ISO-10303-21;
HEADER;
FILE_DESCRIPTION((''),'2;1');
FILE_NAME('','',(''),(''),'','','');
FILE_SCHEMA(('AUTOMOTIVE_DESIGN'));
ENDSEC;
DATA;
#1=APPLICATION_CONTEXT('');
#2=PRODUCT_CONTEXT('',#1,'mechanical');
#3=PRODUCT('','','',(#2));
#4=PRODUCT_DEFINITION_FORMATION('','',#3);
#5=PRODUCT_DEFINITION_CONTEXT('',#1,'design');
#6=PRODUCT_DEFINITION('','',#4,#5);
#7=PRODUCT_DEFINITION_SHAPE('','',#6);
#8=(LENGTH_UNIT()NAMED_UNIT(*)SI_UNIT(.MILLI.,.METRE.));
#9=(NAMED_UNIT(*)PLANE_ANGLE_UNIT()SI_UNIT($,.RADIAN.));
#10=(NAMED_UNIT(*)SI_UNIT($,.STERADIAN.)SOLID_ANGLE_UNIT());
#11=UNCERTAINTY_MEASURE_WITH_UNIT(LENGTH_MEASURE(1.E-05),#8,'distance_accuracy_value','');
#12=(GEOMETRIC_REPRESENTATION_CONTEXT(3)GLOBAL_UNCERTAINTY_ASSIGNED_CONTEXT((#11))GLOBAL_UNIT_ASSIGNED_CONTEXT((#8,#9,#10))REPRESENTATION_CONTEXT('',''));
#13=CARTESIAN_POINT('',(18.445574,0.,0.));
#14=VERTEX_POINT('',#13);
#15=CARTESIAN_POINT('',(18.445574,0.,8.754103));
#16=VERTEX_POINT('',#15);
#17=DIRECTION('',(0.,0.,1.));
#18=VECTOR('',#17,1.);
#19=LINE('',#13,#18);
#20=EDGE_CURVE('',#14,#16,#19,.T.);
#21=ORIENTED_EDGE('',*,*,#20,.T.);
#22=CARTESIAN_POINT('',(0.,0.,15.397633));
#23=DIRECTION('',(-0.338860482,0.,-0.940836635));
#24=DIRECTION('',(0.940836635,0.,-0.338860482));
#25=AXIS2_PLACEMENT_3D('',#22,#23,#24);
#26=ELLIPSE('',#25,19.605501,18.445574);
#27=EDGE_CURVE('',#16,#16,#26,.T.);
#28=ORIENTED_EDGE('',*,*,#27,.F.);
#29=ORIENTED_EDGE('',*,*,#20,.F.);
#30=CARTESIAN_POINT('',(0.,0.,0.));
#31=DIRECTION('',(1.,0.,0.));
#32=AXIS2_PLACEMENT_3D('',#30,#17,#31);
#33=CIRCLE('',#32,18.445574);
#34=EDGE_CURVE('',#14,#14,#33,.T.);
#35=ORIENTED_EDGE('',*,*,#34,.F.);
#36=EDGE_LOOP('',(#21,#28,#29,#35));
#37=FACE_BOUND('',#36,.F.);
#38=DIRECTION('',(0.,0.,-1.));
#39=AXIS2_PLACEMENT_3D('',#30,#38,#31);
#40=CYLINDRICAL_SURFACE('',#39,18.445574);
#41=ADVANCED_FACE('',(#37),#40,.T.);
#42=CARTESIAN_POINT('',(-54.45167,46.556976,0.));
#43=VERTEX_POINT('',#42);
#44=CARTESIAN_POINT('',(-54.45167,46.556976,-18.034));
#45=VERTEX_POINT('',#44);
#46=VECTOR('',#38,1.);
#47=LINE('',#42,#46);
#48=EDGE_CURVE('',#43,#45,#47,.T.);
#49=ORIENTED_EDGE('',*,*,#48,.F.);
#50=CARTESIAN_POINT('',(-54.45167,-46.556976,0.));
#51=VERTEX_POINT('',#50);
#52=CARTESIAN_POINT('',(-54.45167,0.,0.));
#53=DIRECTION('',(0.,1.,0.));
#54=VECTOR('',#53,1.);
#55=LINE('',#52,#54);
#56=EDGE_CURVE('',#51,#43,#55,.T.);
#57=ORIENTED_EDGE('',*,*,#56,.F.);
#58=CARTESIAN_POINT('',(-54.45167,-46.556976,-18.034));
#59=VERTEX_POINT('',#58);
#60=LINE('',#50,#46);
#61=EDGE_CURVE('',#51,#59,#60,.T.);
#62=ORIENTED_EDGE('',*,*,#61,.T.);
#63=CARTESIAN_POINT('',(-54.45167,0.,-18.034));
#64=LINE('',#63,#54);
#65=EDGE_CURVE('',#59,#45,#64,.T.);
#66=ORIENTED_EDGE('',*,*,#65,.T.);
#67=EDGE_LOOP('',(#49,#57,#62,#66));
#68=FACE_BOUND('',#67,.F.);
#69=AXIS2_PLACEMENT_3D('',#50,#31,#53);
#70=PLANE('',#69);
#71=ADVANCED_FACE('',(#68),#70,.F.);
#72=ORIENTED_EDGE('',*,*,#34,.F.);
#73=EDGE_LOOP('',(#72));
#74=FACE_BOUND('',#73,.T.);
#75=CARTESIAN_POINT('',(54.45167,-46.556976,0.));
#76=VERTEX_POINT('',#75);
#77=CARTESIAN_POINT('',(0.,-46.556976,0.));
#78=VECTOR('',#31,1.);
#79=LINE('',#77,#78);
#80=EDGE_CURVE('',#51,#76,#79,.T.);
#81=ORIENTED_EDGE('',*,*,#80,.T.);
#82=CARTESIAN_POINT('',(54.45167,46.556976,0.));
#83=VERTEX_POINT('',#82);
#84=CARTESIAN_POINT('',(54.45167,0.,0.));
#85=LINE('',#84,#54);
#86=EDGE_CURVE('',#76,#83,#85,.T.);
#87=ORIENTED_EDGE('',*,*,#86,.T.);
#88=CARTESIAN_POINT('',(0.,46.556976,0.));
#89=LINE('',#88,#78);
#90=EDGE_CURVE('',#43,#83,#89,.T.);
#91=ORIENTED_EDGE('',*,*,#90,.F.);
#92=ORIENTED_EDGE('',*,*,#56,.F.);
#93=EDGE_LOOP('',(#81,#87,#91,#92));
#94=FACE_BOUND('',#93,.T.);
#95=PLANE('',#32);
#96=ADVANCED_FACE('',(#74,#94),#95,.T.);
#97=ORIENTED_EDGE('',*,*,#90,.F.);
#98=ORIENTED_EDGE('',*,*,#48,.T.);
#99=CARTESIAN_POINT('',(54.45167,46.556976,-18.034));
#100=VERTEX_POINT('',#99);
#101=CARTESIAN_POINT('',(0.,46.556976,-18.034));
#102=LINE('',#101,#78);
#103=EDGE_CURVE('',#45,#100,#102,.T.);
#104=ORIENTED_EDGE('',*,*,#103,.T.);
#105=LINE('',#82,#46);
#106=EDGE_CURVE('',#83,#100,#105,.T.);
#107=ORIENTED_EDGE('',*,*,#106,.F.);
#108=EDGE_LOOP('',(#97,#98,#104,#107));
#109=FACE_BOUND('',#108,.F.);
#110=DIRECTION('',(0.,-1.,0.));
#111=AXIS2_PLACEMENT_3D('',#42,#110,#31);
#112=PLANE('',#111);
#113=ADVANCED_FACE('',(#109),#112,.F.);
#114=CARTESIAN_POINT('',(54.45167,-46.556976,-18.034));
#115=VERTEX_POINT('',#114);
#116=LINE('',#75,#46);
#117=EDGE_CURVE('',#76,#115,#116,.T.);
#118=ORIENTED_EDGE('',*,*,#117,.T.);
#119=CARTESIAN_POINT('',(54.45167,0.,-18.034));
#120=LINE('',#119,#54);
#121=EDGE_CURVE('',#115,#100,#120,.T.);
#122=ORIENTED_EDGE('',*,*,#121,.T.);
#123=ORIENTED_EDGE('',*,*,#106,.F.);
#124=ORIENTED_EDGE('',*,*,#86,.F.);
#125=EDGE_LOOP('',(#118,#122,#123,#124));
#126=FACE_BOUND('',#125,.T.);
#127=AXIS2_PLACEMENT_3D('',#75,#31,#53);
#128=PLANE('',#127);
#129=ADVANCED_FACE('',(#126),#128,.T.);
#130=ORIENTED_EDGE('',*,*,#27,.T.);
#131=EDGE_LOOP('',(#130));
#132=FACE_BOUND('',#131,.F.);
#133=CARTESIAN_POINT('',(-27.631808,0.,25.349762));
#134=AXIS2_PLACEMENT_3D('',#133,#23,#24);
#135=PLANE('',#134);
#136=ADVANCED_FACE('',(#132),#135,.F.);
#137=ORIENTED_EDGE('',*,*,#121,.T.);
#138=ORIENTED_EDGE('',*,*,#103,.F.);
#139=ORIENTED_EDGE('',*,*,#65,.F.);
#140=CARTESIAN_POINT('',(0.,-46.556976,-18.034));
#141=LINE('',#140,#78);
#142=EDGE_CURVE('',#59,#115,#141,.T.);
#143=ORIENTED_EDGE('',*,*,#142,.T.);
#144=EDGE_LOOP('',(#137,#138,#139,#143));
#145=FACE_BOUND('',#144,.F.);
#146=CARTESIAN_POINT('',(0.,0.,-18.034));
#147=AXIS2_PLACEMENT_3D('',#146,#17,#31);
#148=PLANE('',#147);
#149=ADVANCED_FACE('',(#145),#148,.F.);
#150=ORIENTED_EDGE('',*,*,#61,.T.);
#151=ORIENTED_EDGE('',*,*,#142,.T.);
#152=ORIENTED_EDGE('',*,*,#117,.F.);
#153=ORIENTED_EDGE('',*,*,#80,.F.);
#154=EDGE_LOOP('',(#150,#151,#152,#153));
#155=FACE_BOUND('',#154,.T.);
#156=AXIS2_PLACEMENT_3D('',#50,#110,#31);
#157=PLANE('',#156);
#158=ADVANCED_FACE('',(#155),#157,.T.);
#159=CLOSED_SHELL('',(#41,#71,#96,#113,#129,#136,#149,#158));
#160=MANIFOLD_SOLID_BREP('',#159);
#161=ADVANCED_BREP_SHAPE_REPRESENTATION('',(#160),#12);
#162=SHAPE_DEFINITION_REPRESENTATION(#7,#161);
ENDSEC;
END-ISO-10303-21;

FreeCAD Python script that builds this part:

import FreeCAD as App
import Part
import Sketcher

V = App.Vector
Q = App.Units.Quantity


def add_polygon(sketch, points):
    """Adds a closed chain of lines whose ends are joined by coincident constraints."""
    first, n = sketch.GeometryCount, len(points)
    for a, b in zip(points, points[1:] + points[:1]):
        sketch.addGeometry(Part.LineSegment(App.Vector(*a, 0), App.Vector(*b, 0)), False)
    for i in range(n):
        sketch.addConstraint(Sketcher.Constraint("Coincident", first + i, 2, first + (i + 1) % n, 1))

doc = App.newDocument("Part")
body = doc.addObject("PartDesign::Body", "Body")

# Sketch on XY plane
sketch1 = doc.addObject("Sketcher::SketchObject", "Sketch")
body.addObject(sketch1)
sketch1.AttachmentSupport = (doc.XY_Plane, [""])
sketch1.MapMode = "FlatFace"
add_polygon(sketch1, [(-54.45167, 46.556976), (-54.45167, -46.556976), (54.45167, -46.556976), (54.45167, 46.556976)])  # lines 0-3
sketch1.addConstraint([
    Sketcher.Constraint("Vertical", 0),
    Sketcher.Constraint("Horizontal", 1),
    Sketcher.Constraint("Vertical", 2),
    Sketcher.Constraint("Horizontal", 3),
    Sketcher.Constraint("Symmetric", 0, 2, 2, 2, -1, 1),
    Sketcher.Constraint("DistanceX", 1, 1, 1, 2, Q("108.90334 mm")),
    Sketcher.Constraint("DistanceY", 0, 2, 0, 1, Q("93.113952 mm")),
])
pad1 = doc.addObject("PartDesign::Pad", "Pad")
body.addObject(pad1)
pad1.Profile = sketch1
pad1.Length = Q("0.71 in")
pad1.Reversed = True

# Sketch on XY plane
sketch2 = doc.addObject("Sketcher::SketchObject", "Sketch001")
body.addObject(sketch2)
sketch2.AttachmentSupport = (doc.XY_Plane, [""])
sketch2.MapMode = "FlatFace"
sketch2.addGeometry(Part.Circle(V(0, 0, 0), V(0, 0, 1), 18.445574), False)
sketch2.addConstraint([
    Sketcher.Constraint("Coincident", 0, 3, -1, 1),
    Sketcher.Constraint("Diameter", 0, Q("36.891148 mm")),
])
pad2 = doc.addObject("PartDesign::Pad", "Pad001")
body.addObject(pad2)
pad2.Profile = sketch2
pad2.Length = Q("2.15 in")

# Sketch on XZ plane
sketch3 = doc.addObject("Sketcher::SketchObject", "Sketch002")
body.addObject(sketch3)
sketch3.AttachmentSupport = (doc.XZ_Plane, [""])
sketch3.MapMode = "FlatFace"
add_polygon(sketch3, [(-27.631808, 92.519648), (-27.631808, 25.349762), (42.751096, 0), (42.751096, 92.519648)])  # lines 0-3
sketch3.addConstraint([
    Sketcher.Constraint("Vertical", 0),
    Sketcher.Constraint("Vertical", 2),
    Sketcher.Constraint("Horizontal", 3),
    Sketcher.Constraint("PointOnObject", 1, 2, -1),
    Sketcher.Constraint("DistanceY", 2, 1, 2, 2, Q("92.519648 mm")),
    Sketcher.Constraint("DistanceX", 3, 2, 3, 1, Q("70.382904 mm")),
    Sketcher.Constraint("DistanceY", 0, 2, 0, 1, Q("67.169886 mm")),
    Sketcher.Constraint("DistanceX", 0, 2, -1, 1, Q("27.631808 mm")),
])
pocket1 = doc.addObject("PartDesign::Pocket", "Pocket")
body.addObject(pocket1)
pocket1.Profile = sketch3
pocket1.Length = Q("2 in")
pocket1.Midplane = True

doc.recompute()
